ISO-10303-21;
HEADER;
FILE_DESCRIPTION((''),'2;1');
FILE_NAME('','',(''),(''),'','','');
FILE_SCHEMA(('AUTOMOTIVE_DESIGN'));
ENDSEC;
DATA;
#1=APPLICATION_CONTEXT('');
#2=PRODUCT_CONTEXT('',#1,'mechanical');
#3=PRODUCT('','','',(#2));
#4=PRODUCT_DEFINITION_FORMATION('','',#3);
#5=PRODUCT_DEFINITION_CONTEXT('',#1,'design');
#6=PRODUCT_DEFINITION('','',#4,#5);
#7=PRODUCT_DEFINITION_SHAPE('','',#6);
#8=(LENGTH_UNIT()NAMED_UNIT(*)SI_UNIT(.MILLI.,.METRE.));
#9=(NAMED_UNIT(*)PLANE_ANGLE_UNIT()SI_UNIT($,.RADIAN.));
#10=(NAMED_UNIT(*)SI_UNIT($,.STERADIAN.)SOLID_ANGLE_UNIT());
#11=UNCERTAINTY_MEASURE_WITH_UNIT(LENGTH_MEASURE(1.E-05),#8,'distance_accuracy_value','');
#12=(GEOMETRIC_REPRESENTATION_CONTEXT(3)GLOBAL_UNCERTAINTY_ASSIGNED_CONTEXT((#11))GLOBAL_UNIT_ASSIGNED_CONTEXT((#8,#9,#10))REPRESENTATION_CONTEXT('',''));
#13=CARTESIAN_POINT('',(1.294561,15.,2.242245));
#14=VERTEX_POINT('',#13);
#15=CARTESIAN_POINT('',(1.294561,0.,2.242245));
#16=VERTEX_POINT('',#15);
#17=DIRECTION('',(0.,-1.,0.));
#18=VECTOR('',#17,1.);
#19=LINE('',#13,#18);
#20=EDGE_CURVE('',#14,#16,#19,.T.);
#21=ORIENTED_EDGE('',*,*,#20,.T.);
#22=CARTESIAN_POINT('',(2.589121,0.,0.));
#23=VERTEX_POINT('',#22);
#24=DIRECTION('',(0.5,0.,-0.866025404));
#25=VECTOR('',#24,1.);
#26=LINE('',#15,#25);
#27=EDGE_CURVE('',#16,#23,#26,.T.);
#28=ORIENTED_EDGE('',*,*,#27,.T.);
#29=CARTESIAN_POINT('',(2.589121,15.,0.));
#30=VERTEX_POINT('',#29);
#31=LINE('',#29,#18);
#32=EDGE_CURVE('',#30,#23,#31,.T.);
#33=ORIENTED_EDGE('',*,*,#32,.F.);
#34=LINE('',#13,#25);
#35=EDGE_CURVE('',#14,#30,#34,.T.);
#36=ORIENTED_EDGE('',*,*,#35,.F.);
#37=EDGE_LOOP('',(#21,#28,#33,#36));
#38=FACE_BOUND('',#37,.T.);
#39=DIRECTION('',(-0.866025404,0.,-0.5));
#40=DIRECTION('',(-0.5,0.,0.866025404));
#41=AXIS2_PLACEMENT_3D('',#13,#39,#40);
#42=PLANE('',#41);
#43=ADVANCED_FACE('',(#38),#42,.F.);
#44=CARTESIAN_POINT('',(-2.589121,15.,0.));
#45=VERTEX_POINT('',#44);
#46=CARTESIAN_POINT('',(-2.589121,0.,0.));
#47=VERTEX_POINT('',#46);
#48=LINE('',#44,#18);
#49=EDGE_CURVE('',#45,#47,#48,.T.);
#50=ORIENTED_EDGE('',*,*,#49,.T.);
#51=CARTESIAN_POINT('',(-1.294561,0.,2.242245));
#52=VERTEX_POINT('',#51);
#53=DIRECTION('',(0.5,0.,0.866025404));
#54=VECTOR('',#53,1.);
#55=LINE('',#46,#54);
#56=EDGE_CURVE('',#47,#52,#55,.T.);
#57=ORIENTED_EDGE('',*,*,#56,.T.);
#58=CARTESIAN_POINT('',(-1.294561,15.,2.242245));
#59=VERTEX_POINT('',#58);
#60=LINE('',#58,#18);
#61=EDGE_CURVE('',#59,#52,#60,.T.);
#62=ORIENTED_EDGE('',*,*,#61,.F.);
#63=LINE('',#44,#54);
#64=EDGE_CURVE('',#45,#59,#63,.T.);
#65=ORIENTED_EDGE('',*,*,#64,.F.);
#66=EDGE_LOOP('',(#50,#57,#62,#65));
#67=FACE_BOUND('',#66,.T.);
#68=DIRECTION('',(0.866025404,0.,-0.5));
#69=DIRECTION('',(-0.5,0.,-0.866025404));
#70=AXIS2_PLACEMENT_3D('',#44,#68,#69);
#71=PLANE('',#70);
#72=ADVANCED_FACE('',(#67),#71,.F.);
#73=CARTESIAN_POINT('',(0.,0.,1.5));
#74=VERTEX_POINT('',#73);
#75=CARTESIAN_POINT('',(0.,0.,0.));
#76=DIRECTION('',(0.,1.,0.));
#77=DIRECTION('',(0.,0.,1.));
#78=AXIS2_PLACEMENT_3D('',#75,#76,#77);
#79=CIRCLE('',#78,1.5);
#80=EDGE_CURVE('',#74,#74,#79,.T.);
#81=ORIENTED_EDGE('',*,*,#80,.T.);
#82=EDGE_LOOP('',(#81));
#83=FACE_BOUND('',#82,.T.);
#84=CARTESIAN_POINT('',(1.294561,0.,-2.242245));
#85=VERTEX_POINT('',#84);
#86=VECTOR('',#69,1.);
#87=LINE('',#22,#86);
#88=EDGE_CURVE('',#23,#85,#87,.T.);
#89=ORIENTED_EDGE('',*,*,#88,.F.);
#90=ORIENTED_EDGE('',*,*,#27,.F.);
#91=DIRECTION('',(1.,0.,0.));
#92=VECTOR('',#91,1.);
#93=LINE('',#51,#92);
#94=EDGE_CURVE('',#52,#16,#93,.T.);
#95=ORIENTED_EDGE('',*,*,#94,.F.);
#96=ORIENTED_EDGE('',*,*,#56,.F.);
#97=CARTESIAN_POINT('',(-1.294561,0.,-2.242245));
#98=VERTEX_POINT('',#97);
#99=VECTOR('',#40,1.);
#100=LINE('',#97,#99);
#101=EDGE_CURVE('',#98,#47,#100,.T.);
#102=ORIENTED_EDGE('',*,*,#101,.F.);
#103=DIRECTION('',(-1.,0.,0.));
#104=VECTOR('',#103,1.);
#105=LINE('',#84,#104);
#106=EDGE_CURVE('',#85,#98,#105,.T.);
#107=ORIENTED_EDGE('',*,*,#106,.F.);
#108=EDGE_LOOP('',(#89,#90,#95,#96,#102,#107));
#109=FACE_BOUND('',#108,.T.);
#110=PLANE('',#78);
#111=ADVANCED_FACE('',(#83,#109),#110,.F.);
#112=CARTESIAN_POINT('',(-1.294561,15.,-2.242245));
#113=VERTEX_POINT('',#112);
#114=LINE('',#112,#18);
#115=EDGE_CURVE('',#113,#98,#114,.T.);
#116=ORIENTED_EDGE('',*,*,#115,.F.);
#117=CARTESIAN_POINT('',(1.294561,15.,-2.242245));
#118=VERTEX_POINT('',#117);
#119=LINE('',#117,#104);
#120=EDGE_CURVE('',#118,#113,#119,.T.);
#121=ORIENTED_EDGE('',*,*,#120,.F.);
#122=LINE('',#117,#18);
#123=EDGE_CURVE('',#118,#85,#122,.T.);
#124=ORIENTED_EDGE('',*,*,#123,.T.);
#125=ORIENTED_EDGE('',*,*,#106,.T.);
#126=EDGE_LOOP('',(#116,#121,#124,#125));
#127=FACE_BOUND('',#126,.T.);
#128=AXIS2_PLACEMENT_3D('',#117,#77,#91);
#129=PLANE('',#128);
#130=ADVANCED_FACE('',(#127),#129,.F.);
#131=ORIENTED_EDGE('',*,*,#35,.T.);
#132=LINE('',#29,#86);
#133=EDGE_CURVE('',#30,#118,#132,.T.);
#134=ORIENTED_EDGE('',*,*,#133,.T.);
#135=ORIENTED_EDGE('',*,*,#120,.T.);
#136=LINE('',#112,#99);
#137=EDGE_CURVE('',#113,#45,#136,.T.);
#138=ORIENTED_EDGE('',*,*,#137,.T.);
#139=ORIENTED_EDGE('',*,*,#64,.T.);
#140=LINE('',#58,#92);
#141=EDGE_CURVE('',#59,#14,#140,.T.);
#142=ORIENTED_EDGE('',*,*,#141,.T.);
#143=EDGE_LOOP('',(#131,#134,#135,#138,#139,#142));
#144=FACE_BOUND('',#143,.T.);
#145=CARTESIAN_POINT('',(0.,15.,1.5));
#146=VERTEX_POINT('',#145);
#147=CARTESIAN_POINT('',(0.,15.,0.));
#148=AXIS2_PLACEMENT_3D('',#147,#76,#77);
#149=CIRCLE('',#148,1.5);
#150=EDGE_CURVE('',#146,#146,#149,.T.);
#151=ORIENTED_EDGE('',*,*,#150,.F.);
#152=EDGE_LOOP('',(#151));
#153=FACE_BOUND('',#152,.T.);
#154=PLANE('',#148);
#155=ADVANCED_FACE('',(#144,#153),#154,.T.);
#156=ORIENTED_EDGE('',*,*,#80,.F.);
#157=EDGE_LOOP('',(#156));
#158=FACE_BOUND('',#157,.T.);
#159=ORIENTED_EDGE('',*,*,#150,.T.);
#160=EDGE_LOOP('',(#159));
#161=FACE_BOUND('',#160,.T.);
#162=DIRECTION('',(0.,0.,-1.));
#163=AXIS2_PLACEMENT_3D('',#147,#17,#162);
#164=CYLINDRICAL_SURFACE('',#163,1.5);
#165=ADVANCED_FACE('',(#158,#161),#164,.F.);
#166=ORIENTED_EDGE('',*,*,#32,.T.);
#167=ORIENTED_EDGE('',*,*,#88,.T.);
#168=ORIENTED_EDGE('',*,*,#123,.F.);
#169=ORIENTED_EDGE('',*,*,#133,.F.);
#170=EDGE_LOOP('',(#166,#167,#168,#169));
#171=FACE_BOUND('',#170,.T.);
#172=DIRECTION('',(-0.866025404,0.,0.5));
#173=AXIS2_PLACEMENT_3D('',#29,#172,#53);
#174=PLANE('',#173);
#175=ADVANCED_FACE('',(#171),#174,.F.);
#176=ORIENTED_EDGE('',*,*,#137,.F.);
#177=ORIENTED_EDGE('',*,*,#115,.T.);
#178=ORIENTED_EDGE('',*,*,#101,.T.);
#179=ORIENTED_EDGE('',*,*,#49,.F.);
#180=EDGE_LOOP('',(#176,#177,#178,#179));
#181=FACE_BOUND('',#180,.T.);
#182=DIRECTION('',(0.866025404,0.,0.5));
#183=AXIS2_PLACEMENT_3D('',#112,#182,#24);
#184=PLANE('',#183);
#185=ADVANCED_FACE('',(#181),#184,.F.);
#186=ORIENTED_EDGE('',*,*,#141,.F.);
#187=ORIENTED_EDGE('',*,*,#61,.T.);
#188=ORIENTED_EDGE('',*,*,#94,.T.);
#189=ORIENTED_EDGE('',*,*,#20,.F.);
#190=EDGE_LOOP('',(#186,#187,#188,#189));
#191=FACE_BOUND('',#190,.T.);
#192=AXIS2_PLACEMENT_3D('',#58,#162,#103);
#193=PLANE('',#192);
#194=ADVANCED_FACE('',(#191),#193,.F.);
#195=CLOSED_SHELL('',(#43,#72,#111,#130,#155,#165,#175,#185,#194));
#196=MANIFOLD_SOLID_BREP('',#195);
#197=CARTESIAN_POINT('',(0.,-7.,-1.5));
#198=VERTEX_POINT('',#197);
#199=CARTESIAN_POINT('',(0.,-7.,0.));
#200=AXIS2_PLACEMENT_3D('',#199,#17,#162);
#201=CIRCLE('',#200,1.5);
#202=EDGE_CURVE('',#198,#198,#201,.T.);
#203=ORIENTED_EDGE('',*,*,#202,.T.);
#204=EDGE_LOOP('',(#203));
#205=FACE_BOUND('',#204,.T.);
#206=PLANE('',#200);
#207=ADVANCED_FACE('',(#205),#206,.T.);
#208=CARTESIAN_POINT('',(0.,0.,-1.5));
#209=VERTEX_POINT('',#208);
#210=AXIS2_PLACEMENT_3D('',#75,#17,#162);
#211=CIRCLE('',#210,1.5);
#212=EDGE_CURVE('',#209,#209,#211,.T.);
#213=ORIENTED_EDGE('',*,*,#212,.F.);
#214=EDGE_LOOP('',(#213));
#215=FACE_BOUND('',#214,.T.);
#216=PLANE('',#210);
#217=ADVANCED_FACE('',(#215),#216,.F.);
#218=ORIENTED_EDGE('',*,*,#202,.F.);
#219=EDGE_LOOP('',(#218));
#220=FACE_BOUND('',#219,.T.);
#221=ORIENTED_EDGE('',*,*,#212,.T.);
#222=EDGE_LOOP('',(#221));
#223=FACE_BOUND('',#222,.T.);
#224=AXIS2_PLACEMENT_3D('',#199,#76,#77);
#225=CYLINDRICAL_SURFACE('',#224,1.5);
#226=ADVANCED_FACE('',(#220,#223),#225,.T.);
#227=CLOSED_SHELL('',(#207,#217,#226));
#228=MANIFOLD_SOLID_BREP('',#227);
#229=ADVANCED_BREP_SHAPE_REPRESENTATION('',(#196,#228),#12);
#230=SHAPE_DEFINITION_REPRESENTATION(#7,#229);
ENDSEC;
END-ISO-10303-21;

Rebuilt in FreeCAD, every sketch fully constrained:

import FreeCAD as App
import Part
import Sketcher

V = App.Vector
Q = App.Units.Quantity


def add_polygon(sketch, points):
    """Adds a closed chain of lines whose ends are joined by coincident constraints."""
    first, n = sketch.GeometryCount, len(points)
    for a, b in zip(points, points[1:] + points[:1]):
        sketch.addGeometry(Part.LineSegment(App.Vector(*a, 0), App.Vector(*b, 0)), False)
    for i in range(n):
        sketch.addConstraint(Sketcher.Constraint("Coincident", first + i, 2, first + (i + 1) % n, 1))

doc = App.newDocument("Part")
params = doc.addObject("Spreadsheet::Sheet", "Params")
for row, (alias, value) in enumerate([
    ("sketch1_diameter", "3 mm"),
    ("pad1_length", "15 mm"),
    ("sketch2_diameter", "3 mm"),
    ("pad2_length", "7 mm"),
], start=1):
    params.set(f"A{row}", alias)
    params.set(f"B{row}", "=" + value)
    params.setAlias(f"B{row}", alias)

body = doc.addObject("PartDesign::Body", "Body")

# Sketch on XZ plane
sketch1 = body.newObject("Sketcher::SketchObject", "Sketch")
sketch1.AttachmentSupport = (doc.getObject("XZ_Plane"), [""])
sketch1.MapMode = "FlatFace"
add_polygon(sketch1, [(-1.3, -2.2), (-2.6, 0), (-1.3, 2.2), (1.3, 2.2), (2.6, 0), (1.3, -2.2)])  # lines 0-5
sketch1.addGeometry(Part.Circle(V(0, 0, 0), V(0, 0, 1), 1.5), False)  # 6
sketch1.addConstraint([
    Sketcher.Constraint("Horizontal", 2),
    Sketcher.Constraint("Horizontal", 5),
    Sketcher.Constraint("Coincident", 6, 3, -1, 1),
    Sketcher.Constraint("Symmetric", 0, 2, 3, 2, -1, 1),
    Sketcher.Constraint("Symmetric", 1, 2, 4, 2, -1, 1),
    Sketcher.Constraint("PointOnObject", 0, 2, -1),
    Sketcher.Constraint("Parallel", 0, 3),
    Sketcher.Constraint("Vertical", 2, 2, 4, 2),
    Sketcher.Constraint("Diameter", 6, Q("3 mm")),
    Sketcher.Constraint("Angle", 0, Q("120 deg")),
    Sketcher.Constraint("DistanceX", 2, 1, 2, 2, Q("2.589121 mm")),
    Sketcher.Constraint("Distance", 0, Q("2.589121 mm")),
])
sketch1.setExpression("Constraints[14]", "Params.sketch1_diameter")
pad1 = body.newObject("PartDesign::Pad", "Pad")
pad1.Profile = sketch1
pad1.setExpression("Length", "Params.pad1_length")
pad1.Reversed = True
body2 = doc.addObject("PartDesign::Body", "Body001")

# Sketch on XZ plane
sketch2 = body2.newObject("Sketcher::SketchObject", "Sketch001")
sketch2.AttachmentSupport = (doc.getObject("XZ_Plane001"), [""])
sketch2.MapMode = "FlatFace"
sketch2.addGeometry(Part.Circle(V(0, 0, 0), V(0, 0, 1), 1.5), False)
sketch2.addConstraint([
    Sketcher.Constraint("Coincident", 0, 3, -1, 1),
    Sketcher.Constraint("Diameter", 0, Q("3 mm")),
])
sketch2.setExpression("Constraints[1]", "Params.sketch2_diameter")
pad2 = body2.newObject("PartDesign::Pad", "Pad001")
pad2.Profile = sketch2
pad2.setExpression("Length", "Params.pad2_length")

doc.recompute()
